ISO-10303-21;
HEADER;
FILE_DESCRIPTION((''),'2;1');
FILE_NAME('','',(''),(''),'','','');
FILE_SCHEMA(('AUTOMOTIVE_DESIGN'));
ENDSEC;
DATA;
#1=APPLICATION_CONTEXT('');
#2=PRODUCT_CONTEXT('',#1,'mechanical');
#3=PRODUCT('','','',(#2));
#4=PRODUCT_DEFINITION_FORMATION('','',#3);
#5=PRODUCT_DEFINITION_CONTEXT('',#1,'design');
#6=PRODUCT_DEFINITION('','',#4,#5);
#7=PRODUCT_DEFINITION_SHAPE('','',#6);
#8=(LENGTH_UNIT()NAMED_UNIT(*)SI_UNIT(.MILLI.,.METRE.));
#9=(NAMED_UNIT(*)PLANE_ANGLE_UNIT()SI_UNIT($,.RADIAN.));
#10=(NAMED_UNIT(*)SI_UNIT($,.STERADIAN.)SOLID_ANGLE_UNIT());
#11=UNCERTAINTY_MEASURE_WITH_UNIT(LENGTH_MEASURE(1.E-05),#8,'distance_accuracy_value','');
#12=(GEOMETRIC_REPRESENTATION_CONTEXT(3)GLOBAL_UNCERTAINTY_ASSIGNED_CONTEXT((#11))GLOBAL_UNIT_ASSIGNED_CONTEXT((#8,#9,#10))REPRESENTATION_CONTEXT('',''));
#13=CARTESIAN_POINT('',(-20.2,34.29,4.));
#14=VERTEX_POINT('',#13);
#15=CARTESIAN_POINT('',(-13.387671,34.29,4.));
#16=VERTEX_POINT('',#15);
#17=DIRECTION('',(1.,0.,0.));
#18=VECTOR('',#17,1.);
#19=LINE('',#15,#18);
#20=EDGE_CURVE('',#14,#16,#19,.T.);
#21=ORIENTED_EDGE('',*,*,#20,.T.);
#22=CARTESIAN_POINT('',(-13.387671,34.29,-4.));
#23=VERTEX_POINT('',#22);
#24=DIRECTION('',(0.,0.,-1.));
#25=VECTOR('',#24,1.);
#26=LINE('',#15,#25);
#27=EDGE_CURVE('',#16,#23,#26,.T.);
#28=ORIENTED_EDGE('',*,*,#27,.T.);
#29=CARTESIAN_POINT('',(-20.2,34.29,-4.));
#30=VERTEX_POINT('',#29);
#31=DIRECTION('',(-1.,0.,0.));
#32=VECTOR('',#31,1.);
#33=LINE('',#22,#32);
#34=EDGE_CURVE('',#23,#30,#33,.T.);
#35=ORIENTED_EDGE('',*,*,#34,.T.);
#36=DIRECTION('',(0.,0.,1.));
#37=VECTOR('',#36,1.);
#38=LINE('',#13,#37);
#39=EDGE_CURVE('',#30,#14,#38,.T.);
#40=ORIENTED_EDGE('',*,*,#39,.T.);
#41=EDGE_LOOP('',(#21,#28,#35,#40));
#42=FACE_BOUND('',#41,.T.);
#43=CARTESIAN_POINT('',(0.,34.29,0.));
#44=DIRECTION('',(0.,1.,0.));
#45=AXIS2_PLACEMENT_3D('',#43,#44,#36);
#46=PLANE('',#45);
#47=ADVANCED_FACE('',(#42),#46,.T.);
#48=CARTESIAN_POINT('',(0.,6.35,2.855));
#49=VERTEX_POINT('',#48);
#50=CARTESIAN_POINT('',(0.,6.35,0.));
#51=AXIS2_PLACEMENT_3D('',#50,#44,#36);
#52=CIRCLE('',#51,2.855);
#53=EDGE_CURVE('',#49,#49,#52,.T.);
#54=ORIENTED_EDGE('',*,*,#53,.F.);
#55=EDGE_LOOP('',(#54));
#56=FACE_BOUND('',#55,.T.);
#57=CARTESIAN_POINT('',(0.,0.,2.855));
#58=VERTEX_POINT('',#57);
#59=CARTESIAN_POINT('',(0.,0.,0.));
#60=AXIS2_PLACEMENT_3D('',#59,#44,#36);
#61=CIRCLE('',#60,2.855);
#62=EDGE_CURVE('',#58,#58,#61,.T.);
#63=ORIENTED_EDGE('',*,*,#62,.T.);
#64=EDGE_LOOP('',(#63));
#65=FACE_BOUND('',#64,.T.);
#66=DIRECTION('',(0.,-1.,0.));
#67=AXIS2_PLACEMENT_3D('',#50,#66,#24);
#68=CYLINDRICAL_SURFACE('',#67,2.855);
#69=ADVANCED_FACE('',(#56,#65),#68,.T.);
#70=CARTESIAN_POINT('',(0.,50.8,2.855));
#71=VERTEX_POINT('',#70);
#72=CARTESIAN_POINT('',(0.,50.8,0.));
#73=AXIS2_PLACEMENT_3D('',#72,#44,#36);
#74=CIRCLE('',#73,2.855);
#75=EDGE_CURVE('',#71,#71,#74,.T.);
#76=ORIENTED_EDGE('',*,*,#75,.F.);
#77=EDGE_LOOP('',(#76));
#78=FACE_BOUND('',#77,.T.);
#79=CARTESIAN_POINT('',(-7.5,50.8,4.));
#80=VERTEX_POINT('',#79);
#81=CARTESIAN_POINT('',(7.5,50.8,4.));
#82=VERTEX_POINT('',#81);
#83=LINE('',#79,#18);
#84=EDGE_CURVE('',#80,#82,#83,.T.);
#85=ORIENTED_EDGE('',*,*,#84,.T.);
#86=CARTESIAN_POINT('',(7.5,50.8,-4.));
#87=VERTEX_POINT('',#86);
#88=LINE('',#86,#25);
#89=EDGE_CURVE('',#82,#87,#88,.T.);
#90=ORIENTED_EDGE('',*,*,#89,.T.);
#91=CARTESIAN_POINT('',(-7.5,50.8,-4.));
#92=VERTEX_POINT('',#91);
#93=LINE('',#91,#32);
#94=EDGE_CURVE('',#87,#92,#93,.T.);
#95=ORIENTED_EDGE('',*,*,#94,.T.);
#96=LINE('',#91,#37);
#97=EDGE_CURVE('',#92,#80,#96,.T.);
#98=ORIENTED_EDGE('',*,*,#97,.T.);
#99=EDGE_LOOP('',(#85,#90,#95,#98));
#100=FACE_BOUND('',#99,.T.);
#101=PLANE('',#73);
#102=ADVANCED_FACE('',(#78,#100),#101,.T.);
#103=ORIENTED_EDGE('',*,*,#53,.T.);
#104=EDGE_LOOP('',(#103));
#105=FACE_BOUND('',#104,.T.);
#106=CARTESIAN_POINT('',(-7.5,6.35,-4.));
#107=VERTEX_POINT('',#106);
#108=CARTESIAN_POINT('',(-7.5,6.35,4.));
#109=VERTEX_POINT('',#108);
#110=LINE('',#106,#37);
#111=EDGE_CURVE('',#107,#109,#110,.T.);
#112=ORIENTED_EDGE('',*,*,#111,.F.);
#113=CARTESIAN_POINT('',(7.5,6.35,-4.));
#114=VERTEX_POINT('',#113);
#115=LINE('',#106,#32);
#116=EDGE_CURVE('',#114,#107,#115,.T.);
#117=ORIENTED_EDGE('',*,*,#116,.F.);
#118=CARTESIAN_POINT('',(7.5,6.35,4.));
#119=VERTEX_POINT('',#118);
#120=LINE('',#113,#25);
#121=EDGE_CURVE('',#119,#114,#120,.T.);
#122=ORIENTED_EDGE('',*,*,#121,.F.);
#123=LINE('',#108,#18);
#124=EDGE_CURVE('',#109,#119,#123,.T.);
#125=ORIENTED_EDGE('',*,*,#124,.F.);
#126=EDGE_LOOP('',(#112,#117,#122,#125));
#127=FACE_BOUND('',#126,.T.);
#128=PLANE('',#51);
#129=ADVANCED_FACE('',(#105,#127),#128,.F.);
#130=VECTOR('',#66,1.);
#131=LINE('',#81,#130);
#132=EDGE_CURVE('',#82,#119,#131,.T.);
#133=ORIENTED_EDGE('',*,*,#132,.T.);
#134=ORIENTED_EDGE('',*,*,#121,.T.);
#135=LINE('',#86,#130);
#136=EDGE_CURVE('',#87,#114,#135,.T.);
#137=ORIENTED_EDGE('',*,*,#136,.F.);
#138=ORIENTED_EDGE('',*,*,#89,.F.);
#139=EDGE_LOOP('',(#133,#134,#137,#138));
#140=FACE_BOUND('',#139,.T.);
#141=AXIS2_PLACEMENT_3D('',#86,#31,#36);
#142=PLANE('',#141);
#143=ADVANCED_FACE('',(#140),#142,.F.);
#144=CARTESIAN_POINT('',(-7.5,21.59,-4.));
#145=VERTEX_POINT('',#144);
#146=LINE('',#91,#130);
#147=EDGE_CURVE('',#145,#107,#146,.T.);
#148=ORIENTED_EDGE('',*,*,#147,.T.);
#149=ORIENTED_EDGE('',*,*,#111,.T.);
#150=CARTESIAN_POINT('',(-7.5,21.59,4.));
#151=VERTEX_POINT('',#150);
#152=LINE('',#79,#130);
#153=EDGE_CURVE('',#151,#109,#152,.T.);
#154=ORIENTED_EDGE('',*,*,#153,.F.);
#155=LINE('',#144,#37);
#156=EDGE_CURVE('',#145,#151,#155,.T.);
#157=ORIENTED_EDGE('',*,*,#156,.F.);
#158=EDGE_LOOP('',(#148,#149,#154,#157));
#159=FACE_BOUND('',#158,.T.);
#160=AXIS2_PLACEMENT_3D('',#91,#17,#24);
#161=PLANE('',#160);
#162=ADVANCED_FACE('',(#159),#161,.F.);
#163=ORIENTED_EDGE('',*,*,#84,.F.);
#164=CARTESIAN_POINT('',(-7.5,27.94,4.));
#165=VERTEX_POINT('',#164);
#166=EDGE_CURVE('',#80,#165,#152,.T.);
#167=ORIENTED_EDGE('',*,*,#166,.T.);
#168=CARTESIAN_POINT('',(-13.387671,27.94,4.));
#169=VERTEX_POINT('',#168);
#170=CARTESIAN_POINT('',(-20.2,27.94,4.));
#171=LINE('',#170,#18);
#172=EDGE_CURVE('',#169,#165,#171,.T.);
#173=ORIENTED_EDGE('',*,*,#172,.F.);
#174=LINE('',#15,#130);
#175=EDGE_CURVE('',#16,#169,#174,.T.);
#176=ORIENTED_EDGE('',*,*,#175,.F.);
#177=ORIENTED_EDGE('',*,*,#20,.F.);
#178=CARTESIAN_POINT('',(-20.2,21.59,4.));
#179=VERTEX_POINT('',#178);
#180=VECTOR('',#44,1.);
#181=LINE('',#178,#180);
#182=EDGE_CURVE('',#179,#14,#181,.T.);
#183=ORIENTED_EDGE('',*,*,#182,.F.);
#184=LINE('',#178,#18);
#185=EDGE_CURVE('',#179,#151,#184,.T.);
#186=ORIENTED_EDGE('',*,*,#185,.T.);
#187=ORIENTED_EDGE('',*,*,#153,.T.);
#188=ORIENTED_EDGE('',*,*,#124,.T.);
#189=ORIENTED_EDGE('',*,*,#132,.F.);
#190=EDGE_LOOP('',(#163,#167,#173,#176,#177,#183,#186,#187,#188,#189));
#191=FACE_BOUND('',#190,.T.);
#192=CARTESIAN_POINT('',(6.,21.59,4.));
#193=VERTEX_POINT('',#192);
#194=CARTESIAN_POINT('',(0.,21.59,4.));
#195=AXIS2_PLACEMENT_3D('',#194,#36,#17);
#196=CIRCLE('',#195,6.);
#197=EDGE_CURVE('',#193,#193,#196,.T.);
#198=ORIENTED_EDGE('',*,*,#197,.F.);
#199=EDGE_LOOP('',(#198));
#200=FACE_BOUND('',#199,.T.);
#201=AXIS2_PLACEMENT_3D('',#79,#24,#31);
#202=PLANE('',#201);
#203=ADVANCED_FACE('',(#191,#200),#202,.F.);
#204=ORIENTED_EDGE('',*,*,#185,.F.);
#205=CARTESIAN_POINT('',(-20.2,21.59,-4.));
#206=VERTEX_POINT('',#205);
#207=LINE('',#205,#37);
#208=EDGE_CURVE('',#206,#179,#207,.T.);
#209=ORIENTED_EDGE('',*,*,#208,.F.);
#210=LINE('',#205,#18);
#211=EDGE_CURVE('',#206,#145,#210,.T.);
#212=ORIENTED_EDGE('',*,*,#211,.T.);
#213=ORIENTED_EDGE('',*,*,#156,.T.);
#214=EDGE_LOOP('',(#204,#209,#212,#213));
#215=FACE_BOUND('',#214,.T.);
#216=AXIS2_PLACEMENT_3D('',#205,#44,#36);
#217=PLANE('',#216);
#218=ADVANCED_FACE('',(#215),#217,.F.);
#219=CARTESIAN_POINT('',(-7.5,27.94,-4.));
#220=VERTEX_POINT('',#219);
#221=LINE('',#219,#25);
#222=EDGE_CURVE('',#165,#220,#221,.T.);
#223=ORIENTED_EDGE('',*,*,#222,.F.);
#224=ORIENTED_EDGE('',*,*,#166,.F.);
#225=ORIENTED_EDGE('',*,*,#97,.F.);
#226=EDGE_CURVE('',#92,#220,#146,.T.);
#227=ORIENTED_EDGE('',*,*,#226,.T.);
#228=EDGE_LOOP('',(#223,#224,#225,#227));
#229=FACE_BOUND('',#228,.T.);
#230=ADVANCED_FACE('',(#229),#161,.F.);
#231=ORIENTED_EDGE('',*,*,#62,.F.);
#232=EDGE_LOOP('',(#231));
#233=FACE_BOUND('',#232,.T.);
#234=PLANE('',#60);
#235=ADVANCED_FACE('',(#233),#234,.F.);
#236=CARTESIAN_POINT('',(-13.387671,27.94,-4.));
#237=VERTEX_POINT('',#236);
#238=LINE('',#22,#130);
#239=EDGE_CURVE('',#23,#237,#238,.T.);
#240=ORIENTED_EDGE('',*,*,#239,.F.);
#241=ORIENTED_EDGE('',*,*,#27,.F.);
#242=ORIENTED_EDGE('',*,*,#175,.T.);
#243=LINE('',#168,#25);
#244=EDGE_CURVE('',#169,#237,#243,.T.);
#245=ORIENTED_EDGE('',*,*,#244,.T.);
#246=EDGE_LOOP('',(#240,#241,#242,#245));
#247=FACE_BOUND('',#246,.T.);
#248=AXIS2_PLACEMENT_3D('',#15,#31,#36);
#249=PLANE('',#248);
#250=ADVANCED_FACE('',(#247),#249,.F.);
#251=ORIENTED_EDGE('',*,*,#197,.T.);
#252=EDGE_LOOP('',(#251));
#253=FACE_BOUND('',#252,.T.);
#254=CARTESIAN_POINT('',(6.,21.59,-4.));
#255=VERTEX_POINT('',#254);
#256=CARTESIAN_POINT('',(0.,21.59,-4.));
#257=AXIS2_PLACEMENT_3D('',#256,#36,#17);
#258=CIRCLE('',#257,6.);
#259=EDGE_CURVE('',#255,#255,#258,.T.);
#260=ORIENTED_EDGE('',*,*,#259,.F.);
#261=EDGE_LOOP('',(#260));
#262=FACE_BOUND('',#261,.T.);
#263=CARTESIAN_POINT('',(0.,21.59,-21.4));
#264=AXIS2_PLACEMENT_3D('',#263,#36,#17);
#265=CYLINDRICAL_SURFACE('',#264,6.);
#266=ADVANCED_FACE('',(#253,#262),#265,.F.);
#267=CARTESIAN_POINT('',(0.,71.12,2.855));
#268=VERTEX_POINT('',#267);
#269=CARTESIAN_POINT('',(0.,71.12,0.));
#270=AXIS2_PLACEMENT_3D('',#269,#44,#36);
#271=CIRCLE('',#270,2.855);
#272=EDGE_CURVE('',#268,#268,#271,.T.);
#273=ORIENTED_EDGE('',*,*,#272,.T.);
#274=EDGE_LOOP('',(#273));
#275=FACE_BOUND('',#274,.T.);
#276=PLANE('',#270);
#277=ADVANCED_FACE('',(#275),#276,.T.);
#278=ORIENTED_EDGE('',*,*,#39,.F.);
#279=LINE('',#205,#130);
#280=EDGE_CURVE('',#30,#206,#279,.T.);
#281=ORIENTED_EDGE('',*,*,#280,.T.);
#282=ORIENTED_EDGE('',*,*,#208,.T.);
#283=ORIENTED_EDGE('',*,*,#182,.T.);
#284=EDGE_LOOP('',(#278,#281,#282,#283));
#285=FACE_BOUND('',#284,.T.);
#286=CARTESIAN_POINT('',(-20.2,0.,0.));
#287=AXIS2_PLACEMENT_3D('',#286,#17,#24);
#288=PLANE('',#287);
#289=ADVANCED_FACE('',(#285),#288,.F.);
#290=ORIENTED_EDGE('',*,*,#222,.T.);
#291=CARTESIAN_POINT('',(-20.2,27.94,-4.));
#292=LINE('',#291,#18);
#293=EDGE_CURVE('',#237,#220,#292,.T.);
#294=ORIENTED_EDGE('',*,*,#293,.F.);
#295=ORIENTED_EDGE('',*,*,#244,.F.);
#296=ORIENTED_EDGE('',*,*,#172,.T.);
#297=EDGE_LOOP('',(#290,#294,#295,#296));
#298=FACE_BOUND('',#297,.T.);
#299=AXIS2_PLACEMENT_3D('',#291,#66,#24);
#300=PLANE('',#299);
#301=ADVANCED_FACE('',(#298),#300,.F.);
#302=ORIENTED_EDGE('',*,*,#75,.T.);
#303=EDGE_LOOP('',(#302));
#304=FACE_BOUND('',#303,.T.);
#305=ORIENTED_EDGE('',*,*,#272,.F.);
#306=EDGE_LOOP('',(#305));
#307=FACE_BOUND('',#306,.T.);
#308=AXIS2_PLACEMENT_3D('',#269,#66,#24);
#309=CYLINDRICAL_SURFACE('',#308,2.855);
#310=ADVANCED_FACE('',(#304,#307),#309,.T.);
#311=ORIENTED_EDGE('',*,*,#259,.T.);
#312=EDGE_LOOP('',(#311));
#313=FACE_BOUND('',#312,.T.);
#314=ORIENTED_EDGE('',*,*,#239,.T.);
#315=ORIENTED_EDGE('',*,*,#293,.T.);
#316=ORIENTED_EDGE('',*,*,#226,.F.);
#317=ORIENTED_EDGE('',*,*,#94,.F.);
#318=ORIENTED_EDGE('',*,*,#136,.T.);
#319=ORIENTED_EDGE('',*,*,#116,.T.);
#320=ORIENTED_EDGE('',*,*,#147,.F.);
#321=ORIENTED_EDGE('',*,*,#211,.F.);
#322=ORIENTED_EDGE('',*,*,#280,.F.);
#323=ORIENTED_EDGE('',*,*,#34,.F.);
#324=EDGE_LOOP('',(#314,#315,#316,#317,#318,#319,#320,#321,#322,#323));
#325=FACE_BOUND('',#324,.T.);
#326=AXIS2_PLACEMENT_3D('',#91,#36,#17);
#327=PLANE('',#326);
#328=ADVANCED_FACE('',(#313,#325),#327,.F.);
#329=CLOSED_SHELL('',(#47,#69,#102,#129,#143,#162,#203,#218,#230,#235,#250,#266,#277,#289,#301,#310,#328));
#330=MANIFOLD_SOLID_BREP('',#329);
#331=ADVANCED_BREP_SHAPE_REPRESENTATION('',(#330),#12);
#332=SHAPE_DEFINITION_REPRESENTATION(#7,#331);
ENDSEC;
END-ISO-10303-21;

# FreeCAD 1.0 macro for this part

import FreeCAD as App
import Part
import Sketcher

V = App.Vector
Q = App.Units.Quantity


def add_polygon(sketch, points):
    """Adds a closed chain of lines whose ends are joined by coincident constraints."""
    first, n = sketch.GeometryCount, len(points)
    for a, b in zip(points, points[1:] + points[:1]):
        sketch.addGeometry(Part.LineSegment(App.Vector(*a, 0), App.Vector(*b, 0)), False)
    for i in range(n):
        sketch.addConstraint(Sketcher.Constraint("Coincident", first + i, 2, first + (i + 1) % n, 1))

doc = App.newDocument("Part")
body = doc.addObject("PartDesign::Body", "Body")

# Sketch on XZ plane
sketch1 = body.newObject("Sketcher::SketchObject", "Sketch")
sketch1.AttachmentSupport = (doc.getObject("XZ_Plane"), [""])
sketch1.MapMode = "FlatFace"
sketch1.addGeometry(Part.Circle(V(0, 0, 0), V(0, 0, 1), 2.9), False)
sketch1.addConstraint([
    Sketcher.Constraint("Coincident", 0, 3, -1, 1),
    Sketcher.Constraint("Diameter", 0, Q("5.71 mm")),
])
pad1 = body.newObject("PartDesign::Pad", "Pad")
pad1.Profile = sketch1
pad1.Length = Q("0.25 in")
pad1.Reversed = True

# Sketch on XZ plane
sketch2 = body.newObject("Sketcher::SketchObject", "Sketch001")
sketch2.AttachmentSupport = (doc.getObject("XZ_Plane"), [""])
sketch2.MapMode = "FlatFace"
sketch2.AttachmentOffset = App.Placement(V(0, 0, -0.25 * 25.4), App.Rotation())
add_polygon(sketch2, [(-8, -4), (-8, 4), (8, 4), (8, -4)])  # lines 0-3
sketch2.addConstraint([
    Sketcher.Constraint("Vertical", 0),
    Sketcher.Constraint("Horizontal", 1),
    Sketcher.Constraint("Vertical", 2),
    Sketcher.Constraint("Horizontal", 3),
    Sketcher.Constraint("Symmetric", 0, 2, 2, 2, -1, 1),
    Sketcher.Constraint("DistanceX", 1, 1, 1, 2, Q("15 mm")),
    Sketcher.Constraint("DistanceY", 0, 1, 0, 2, Q("8 mm")),
])
pad2 = body.newObject("PartDesign::Pad", "Pad001")
pad2.Profile = sketch2
pad2.Length = Q("1.75 in")
pad2.Reversed = True

# Sketch on XY plane
sketch3 = body.newObject("Sketcher::SketchObject", "Sketch002")
sketch3.AttachmentSupport = (doc.getObject("XY_Plane"), [""])
sketch3.MapMode = "FlatFace"
sketch3.AttachmentOffset = App.Placement(V(0, 0, 4), App.Rotation())
sketch3.addGeometry(Part.Circle(V(0, 22, 0), V(0, 0, 1), 6), False)
sketch3.addConstraint([
    Sketcher.Constraint("PointOnObject", 0, 3, -2),
    Sketcher.Constraint("Diameter", 0, Q("12 mm")),
    Sketcher.Constraint("DistanceY", -1, 1, 0, 3, Q("0.85 in")),
])
pocket1 = body.newObject("PartDesign::Pocket", "Pocket")
pocket1.Profile = sketch3
pocket1.Length = Q("1 in")

# Sketch on XZ plane
sketch4 = body.newObject("Sketcher::SketchObject", "Sketch003")
sketch4.AttachmentSupport = (doc.getObject("XZ_Plane"), [""])
sketch4.MapMode = "FlatFace"
sketch4.AttachmentOffset = App.Placement(V(0, 0, -2 * 25.4), App.Rotation())
sketch4.addGeometry(Part.Circle(V(0, 0, 0), V(0, 0, 1), 2.9), False)
sketch4.addConstraint([
    Sketcher.Constraint("Coincident", 0, 3, -1, 1),
    Sketcher.Constraint("Diameter", 0, Q("5.71 mm")),
])
pad3 = body.newObject("PartDesign::Pad", "Pad002")
pad3.Profile = sketch4
pad3.Length = Q("0.8 in")
pad3.Reversed = True

# Sketch on YZ plane
sketch5 = body.newObject("Sketcher::SketchObject", "Sketch004")
sketch5.AttachmentSupport = (doc.getObject("YZ_Plane"), [""])
sketch5.MapMode = "FlatFace"
sketch5.AttachmentOffset = App.Placement(V(0, 0, -7.5), App.Rotation())
add_polygon(sketch5, [(28, -4), (22, -4), (22, 4), (28, 4)])  # lines 0-3
sketch5.addConstraint([
    Sketcher.Constraint("Horizontal", 0),
    Sketcher.Constraint("Vertical", 1),
    Sketcher.Constraint("Horizontal", 2),
    Sketcher.Constraint("Vertical", 3),
    Sketcher.Constraint("DistanceX", 0, 2, 0, 1, Q("0.25 in")),
    Sketcher.Constraint("DistanceX", -1, 1, 2, 2, Q("1.1 in")),
    Sketcher.Constraint("DistanceY", 1, 1, 1, 2, Q("8 mm")),
    Sketcher.Constraint("DistanceY", 0, 2, -1, 1, Q("4 mm")),
])
pad4 = body.newObject("PartDesign::Pad", "Pad003")
pad4.Profile = sketch5
pad4.Length = Q("0.5 in")
pad4.Reversed = True

# Sketch on XZ plane
sketch6 = body.newObject("Sketcher::SketchObject", "Sketch005")
sketch6.AttachmentSupport = (doc.getObject("XZ_Plane"), [""])
sketch6.MapMode = "FlatFace"
sketch6.AttachmentOffset = App.Placement(V(0, 0, -1.1 * 25.4), App.Rotation())
add_polygon(sketch6, [(-20, -4), (-20, 4), (-13, 4), (-13, -4)])  # lines 0-3
sketch6.addConstraint([
    Sketcher.Constraint("Vertical", 0),
    Sketcher.Constraint("Horizontal", 1),
    Sketcher.Constraint("Vertical", 2),
    Sketcher.Constraint("Horizontal", 3),
    Sketcher.Constraint("DistanceY", 0, 1, 0, 2, Q("8 mm")),
    Sketcher.Constraint("DistanceX", 1, 1, 1, 2, Q("6.812329 mm")),
    Sketcher.Constraint("DistanceX", 0, 2, -1, 1, Q("20.2 mm")),
    Sketcher.Constraint("DistanceY", -1, 1, 0, 2, Q("4 mm")),
])
pad5 = body.newObject("PartDesign::Pad", "Pad004")
pad5.Profile = sketch6
pad5.Length = Q("0.25 in")
pad5.Reversed = True

doc.recompute()
